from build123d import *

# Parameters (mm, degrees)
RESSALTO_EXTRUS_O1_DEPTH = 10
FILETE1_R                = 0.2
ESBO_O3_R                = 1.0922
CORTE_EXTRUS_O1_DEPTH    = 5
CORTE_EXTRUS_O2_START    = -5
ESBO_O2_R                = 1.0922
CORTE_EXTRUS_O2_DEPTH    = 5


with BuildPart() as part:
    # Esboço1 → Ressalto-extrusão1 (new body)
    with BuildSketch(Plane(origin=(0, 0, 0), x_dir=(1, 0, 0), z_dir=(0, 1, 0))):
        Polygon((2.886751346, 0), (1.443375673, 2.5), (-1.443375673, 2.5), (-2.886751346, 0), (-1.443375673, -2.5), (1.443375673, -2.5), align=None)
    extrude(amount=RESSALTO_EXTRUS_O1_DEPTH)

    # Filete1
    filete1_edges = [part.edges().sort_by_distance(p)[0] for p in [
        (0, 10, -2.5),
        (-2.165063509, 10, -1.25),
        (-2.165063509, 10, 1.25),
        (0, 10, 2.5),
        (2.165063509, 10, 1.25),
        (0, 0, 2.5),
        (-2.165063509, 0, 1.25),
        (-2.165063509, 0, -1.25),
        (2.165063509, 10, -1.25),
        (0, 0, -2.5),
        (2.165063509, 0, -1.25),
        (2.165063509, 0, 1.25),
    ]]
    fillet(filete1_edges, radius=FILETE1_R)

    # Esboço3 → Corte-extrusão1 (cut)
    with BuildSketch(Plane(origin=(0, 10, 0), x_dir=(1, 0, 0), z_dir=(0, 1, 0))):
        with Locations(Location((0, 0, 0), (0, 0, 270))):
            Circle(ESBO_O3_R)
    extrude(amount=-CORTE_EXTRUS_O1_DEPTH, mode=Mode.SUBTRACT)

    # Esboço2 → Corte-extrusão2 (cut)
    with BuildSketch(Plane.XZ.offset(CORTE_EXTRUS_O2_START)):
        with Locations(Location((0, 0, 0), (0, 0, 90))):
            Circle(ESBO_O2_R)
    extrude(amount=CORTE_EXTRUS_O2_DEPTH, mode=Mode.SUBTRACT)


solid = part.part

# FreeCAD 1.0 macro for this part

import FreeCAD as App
import Part
import Sketcher
Q = App.Units.Quantity


def edges_at(feature, points):
    """Names of the edges that pass closest to the given points."""
    edges = feature.Shape.Edges
    near = lambda p: min(range(len(edges)), key=lambda i: edges[i].distToShape(Part.Vertex(*p))[0])
    return sorted({f"Edge{near(p) + 1}" for p in points})

doc = App.newDocument("Part")
params = doc.addObject("Spreadsheet::Sheet", "Params")
for row, (alias, value) in enumerate([
    ("pad1_length", "10 mm"),
    ("fillet_radius", "0.2 mm"),
    ("pocket1_length", "5 mm"),
    ("pocket2_length", "5 mm"),
], start=1):
    params.set(f"A{row}", alias)
    params.set(f"B{row}", "=" + value)
    params.setAlias(f"B{row}", alias)

body = doc.addObject("PartDesign::Body", "Body")

sketch1 = body.newObject("Sketcher::SketchObject", "Sketch")
sketch1.AttachmentSupport = (doc.getObject("XZ_Plane"), [""])
sketch1.MapMode = "FlatFace"
sketch1.addGeometry([
    Part.LineSegment(App.Vector(2.9, 0, 0), App.Vector(1.4, -2.5, 0)),
    Part.LineSegment(App.Vector(1.4, -2.5, 0), App.Vector(-1.4, -2.5, 0)),
    Part.LineSegment(App.Vector(-1.4, -2.5, 0), App.Vector(-2.9, 0, 0)),
    Part.LineSegment(App.Vector(-2.9, 0, 0), App.Vector(-1.4, 2.5, 0)),
    Part.LineSegment(App.Vector(-1.4, 2.5, 0), App.Vector(1.4, 2.5, 0)),
    Part.LineSegment(App.Vector(1.4, 2.5, 0), App.Vector(2.9, 0, 0)),
], False)
sketch1.addConstraint([
    Sketcher.Constraint("Coincident", 0, 2, 1, 1),
    Sketcher.Constraint("Coincident", 1, 2, 2, 1),
    Sketcher.Constraint("Coincident", 2, 2, 3, 1),
    Sketcher.Constraint("Coincident", 3, 2, 4, 1),
    Sketcher.Constraint("Coincident", 4, 2, 5, 1),
    Sketcher.Constraint("Coincident", 5, 2, 0, 1),
    Sketcher.Constraint("Horizontal", 1),
    Sketcher.Constraint("Horizontal", 4),
    Sketcher.Constraint("Symmetric", 0, 2, 3, 2, -1, 1),
    Sketcher.Constraint("Symmetric", 2, 2, 5, 2, -1, 1),
    Sketcher.Constraint("PointOnObject", 2, 2, -1),
    Sketcher.Constraint("Parallel", 2, 5),
    Sketcher.Constraint("Vertical", 1, 2, 3, 2),
    Sketcher.Constraint("Angle", 0, Q("-120 deg")),
    Sketcher.Constraint("DistanceY", 1, 2, 3, 2, 5.0),
    Sketcher.Constraint("DistanceX", 1, 2, 1, 1, 2.886751),
])
pad1 = body.newObject("PartDesign::Pad", "Pad")
pad1.Profile = sketch1
pad1.setExpression("Length", "Params.pad1_length")
pad1.Reversed = True
doc.recompute()

fillet = body.newObject("PartDesign::Fillet", "Fillet")
fillet.Base = (pad1, edges_at(pad1, [
    (0, 10, -2.5),
    (-2.165, 10, -1.25),
    (-2.165, 10, 1.25),
    (0, 10, 2.5),
    (2.165, 10, 1.25),
    (0, 0, 2.5),
    (-2.165, 0, 1.25),
    (-2.165, 0, -1.25),
    (2.165, 10, -1.25),
    (0, 0, -2.5),
    (2.165, 0, -1.25),
    (2.165, 0, 1.25),
]))
fillet.setExpression("Radius", "Params.fillet_radius")

sketch2 = body.newObject("Sketcher::SketchObject", "Sketch001")
sketch2.AttachmentSupport = (doc.getObject("XZ_Plane"), [""])
sketch2.MapMode = "FlatFace"
sketch2.AttachmentOffset = App.Placement(App.Vector(0, 0, -10), App.Rotation())
sketch2.addGeometry(Part.Circle(App.Vector(0, 0, 0), App.Vector(0, 0, 1), 1.1), False)
sketch2.addConstraint([
    Sketcher.Constraint("Coincident", 0, 3, -1, 1),
    Sketcher.Constraint("Diameter", 0, 2.1844),
])
pocket1 = body.newObject("PartDesign::Pocket", "Pocket")
pocket1.Profile = sketch2
pocket1.setExpression("Length", "Params.pocket1_length")
pocket1.Reversed = True

sketch3 = body.newObject("Sketcher::SketchObject", "Sketch002")
sketch3.AttachmentSupport = (doc.getObject("XZ_Plane"), [""])
sketch3.MapMode = "FlatFace"
sketch3.AttachmentOffset = App.Placement(App.Vector(0, 0, -5), App.Rotation())
sketch3.addGeometry(Part.Circle(App.Vector(0, 0, 0), App.Vector(0, 0, 1), 1.1), False)
sketch3.addConstraint([
    Sketcher.Constraint("Coincident", 0, 3, -1, 1),
    Sketcher.Constraint("Diameter", 0, 2.1844),
])
pocket2 = body.newObject("PartDesign::Pocket", "Pocket001")
pocket2.Profile = sketch3
pocket2.setExpression("Length", "Params.pocket2_length")
pocket2.Reversed = True

doc.recompute()
